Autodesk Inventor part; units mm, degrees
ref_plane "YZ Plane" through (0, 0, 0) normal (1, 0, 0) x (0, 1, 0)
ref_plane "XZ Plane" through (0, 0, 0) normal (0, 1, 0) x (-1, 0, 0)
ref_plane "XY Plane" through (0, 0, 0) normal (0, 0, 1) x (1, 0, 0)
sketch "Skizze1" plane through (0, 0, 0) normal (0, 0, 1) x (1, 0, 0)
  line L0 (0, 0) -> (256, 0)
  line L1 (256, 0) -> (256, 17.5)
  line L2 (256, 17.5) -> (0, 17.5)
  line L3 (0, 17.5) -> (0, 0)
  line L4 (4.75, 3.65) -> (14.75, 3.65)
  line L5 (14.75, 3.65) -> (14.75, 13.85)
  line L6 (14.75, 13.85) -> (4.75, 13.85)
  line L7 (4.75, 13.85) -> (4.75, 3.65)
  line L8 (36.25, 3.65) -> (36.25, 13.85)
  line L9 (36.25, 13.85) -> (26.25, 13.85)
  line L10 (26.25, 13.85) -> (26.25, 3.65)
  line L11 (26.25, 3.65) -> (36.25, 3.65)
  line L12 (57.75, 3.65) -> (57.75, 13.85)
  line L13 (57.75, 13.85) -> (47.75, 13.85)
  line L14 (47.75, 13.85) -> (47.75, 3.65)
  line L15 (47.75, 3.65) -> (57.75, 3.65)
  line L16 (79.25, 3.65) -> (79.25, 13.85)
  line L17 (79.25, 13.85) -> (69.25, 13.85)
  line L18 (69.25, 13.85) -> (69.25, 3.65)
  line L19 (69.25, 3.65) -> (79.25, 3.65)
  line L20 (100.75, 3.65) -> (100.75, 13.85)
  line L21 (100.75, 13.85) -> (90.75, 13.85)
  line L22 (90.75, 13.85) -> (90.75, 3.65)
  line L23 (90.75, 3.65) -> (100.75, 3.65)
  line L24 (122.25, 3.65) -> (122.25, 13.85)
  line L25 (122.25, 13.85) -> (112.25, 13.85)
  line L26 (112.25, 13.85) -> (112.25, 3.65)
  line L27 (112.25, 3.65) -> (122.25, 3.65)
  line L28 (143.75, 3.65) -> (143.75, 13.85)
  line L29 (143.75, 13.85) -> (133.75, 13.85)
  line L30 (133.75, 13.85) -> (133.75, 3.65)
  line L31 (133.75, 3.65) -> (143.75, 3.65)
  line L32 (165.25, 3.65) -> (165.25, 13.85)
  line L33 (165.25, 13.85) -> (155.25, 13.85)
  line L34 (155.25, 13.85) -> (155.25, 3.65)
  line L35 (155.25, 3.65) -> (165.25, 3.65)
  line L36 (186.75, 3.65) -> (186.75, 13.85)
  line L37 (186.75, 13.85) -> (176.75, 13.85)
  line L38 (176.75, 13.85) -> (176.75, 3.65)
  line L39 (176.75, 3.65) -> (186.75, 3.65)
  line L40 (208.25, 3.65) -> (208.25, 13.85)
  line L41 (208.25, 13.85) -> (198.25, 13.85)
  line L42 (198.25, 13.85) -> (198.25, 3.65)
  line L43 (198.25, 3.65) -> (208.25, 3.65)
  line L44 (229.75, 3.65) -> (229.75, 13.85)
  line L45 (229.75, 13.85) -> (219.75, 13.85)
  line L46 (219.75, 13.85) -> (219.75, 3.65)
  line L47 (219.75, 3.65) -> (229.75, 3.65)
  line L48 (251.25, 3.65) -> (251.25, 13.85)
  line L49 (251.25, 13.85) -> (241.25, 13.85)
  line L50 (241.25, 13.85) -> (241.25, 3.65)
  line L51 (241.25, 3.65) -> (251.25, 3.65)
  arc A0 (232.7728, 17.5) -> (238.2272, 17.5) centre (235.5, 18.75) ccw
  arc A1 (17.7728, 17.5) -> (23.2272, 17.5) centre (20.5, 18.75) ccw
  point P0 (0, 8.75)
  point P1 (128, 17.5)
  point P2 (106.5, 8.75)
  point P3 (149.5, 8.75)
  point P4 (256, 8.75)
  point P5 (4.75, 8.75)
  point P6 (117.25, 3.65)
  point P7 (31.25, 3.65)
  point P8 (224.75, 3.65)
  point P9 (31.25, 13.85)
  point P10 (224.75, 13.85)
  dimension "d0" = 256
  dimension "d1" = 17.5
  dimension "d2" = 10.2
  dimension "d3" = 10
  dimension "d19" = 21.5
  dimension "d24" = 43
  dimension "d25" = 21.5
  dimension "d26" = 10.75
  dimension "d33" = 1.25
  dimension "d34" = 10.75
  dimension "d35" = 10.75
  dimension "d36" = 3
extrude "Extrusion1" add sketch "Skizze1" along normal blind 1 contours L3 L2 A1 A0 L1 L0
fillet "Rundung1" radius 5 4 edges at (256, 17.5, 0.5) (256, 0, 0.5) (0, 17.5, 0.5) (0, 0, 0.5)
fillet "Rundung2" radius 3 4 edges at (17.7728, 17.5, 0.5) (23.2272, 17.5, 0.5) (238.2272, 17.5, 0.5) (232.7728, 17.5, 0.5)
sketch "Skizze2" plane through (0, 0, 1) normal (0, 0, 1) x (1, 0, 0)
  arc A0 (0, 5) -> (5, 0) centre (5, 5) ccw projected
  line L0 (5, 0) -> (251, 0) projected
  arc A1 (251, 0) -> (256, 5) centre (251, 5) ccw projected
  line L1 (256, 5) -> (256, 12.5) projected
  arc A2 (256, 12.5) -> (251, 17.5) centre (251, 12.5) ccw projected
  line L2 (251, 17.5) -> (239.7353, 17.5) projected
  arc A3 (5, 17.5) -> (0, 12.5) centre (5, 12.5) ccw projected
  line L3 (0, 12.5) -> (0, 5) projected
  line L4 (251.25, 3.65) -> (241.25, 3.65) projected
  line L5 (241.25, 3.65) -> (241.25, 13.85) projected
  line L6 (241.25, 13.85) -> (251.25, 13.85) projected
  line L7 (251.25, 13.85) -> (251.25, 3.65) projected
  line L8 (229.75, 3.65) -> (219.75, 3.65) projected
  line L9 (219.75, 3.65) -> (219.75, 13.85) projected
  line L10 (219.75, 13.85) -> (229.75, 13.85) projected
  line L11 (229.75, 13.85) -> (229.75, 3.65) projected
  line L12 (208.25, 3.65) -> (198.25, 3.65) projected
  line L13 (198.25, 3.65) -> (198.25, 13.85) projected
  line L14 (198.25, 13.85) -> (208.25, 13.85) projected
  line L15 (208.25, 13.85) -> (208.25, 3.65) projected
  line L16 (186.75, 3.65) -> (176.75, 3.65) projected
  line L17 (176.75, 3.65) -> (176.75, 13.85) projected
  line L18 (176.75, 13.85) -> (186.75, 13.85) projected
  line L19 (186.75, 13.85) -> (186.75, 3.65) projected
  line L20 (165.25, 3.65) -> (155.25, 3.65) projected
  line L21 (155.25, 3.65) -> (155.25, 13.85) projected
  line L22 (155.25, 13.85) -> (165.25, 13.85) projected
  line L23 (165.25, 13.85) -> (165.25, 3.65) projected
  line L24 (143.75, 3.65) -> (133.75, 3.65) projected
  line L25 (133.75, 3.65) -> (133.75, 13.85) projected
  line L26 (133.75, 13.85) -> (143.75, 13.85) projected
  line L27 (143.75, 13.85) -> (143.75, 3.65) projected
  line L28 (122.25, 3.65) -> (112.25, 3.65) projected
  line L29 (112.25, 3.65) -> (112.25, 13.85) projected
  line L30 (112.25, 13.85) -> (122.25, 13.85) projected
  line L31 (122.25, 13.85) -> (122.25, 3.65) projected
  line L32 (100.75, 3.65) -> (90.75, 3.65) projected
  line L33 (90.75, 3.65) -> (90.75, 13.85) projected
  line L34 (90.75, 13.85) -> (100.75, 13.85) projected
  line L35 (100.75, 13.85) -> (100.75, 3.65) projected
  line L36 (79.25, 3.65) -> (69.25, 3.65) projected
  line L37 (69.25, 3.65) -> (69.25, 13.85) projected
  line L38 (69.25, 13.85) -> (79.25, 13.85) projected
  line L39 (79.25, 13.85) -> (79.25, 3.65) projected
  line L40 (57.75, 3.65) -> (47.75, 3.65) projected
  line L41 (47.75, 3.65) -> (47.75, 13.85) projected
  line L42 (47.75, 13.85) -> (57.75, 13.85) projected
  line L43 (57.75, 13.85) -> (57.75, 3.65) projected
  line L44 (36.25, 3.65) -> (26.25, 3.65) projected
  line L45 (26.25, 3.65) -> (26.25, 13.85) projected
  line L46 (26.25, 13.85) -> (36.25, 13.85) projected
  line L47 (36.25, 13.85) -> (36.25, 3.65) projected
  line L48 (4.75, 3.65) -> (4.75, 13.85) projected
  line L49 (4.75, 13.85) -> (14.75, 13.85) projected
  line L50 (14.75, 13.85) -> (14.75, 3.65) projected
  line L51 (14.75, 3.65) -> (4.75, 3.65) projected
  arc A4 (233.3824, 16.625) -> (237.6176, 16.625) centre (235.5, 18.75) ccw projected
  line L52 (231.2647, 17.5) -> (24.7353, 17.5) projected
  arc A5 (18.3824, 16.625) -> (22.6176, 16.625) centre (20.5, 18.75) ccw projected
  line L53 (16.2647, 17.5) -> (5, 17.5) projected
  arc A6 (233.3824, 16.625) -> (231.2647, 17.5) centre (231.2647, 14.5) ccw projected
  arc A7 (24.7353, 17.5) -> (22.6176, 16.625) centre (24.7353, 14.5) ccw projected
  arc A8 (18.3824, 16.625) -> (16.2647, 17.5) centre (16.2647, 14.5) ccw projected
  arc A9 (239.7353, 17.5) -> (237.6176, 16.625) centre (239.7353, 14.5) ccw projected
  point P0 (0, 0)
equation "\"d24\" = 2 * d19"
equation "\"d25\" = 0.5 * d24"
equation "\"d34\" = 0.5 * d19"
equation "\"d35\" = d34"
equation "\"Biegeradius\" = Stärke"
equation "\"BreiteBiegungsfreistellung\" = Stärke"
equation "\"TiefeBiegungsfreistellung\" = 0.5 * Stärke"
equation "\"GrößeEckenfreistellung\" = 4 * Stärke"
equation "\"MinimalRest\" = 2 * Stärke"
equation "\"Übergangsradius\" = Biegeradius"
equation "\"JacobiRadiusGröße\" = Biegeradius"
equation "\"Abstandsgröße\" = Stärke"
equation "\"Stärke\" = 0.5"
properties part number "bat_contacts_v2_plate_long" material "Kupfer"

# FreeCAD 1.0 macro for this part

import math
import FreeCAD as App
import Part
import Sketcher
from FreeCAD import Vector
Q = App.Units.Quantity


def edges_at(feature, points):
    """Names of the edges that pass closest to the given points."""
    edges = feature.Shape.Edges
    near = lambda p: min(range(len(edges)), key=lambda i: edges[i].distToShape(Part.Vertex(*p))[0])
    return sorted({f"Edge{near(p) + 1}" for p in points})

doc = App.newDocument("Part")
body = doc.addObject("PartDesign::Body", "Body")

# Sketch on XY plane
sketch1 = body.newObject("Sketcher::SketchObject", "Sketch")
sketch1.AttachmentSupport = (doc.getObject("XY_Plane"), [""])
sketch1.MapMode = "FlatFace"
sketch1.addGeometry([
    Part.LineSegment(Vector(0, 17.5, 0), Vector(0, 0, 0)),  # 0
    Part.LineSegment(Vector(0, 0, 0), Vector(256, 0, 0)),  # 1
    Part.LineSegment(Vector(256, 0, 0), Vector(256, 17.5, 0)),  # 2
    Part.LineSegment(Vector(256, 17.5, 0), Vector(238.2, 17.5, 0)),  # 3
    Part.ArcOfCircle(Part.Circle(Vector(235.5, 18.8, 0), Vector(0, 0, 1), 3), math.radians(-155), math.radians(-25)),  # 4
    Part.LineSegment(Vector(232.8, 17.5, 0), Vector(23.2, 17.5, 0)),  # 5
    Part.ArcOfCircle(Part.Circle(Vector(20.5, 18.8, 0), Vector(0, 0, 1), 3), math.radians(-155), math.radians(-25)),  # 6
    Part.LineSegment(Vector(17.8, 17.5, 0), Vector(0, 17.5, 0)),  # 7
    Part.LineSegment(Vector(14.8, 3.6, 0), Vector(4.8, 3.6, 0)),  # 8
    Part.LineSegment(Vector(4.8, 3.6, 0), Vector(4.8, 13.8, 0)),  # 9
    Part.LineSegment(Vector(4.8, 13.8, 0), Vector(14.8, 13.8, 0)),  # 10
    Part.LineSegment(Vector(14.8, 13.8, 0), Vector(14.8, 3.6, 0)),  # 11
    Part.LineSegment(Vector(36.2, 13.8, 0), Vector(36.2, 3.6, 0)),  # 12
    Part.LineSegment(Vector(36.2, 3.6, 0), Vector(26.2, 3.6, 0)),  # 13
    Part.LineSegment(Vector(26.2, 3.6, 0), Vector(26.2, 13.8, 0)),  # 14
    Part.LineSegment(Vector(26.2, 13.8, 0), Vector(36.2, 13.8, 0)),  # 15
    Part.LineSegment(Vector(57.8, 13.8, 0), Vector(57.8, 3.6, 0)),  # 16
    Part.LineSegment(Vector(57.8, 3.6, 0), Vector(47.8, 3.6, 0)),  # 17
    Part.LineSegment(Vector(47.8, 3.6, 0), Vector(47.8, 13.8, 0)),  # 18
    Part.LineSegment(Vector(47.8, 13.8, 0), Vector(57.8, 13.8, 0)),  # 19
    Part.LineSegment(Vector(79.2, 13.8, 0), Vector(79.2, 3.6, 0)),  # 20
    Part.LineSegment(Vector(79.2, 3.6, 0), Vector(69.2, 3.6, 0)),  # 21
    Part.LineSegment(Vector(69.2, 3.6, 0), Vector(69.2, 13.8, 0)),  # 22
    Part.LineSegment(Vector(69.2, 13.8, 0), Vector(79.2, 13.8, 0)),  # 23
    Part.LineSegment(Vector(100.8, 13.8, 0), Vector(100.8, 3.6, 0)),  # 24
    Part.LineSegment(Vector(100.8, 3.6, 0), Vector(90.8, 3.6, 0)),  # 25
    Part.LineSegment(Vector(90.8, 3.6, 0), Vector(90.8, 13.8, 0)),  # 26
    Part.LineSegment(Vector(90.8, 13.8, 0), Vector(100.8, 13.8, 0)),  # 27
    Part.LineSegment(Vector(122.2, 13.8, 0), Vector(122.2, 3.6, 0)),  # 28
    Part.LineSegment(Vector(122.2, 3.6, 0), Vector(112.2, 3.6, 0)),  # 29
    Part.LineSegment(Vector(112.2, 3.6, 0), Vector(112.2, 13.8, 0)),  # 30
    Part.LineSegment(Vector(112.2, 13.8, 0), Vector(122.2, 13.8, 0)),  # 31
    Part.LineSegment(Vector(143.8, 13.8, 0), Vector(143.8, 3.6, 0)),  # 32
    Part.LineSegment(Vector(143.8, 3.6, 0), Vector(133.8, 3.6, 0)),  # 33
    Part.LineSegment(Vector(133.8, 3.6, 0), Vector(133.8, 13.8, 0)),  # 34
    Part.LineSegment(Vector(133.8, 13.8, 0), Vector(143.8, 13.8, 0)),  # 35
    Part.LineSegment(Vector(165.2, 13.8, 0), Vector(165.2, 3.6, 0)),  # 36
    Part.LineSegment(Vector(165.2, 3.6, 0), Vector(155.2, 3.6, 0)),  # 37
    Part.LineSegment(Vector(155.2, 3.6, 0), Vector(155.2, 13.8, 0)),  # 38
    Part.LineSegment(Vector(155.2, 13.8, 0), Vector(165.2, 13.8, 0)),  # 39
    Part.LineSegment(Vector(186.8, 13.8, 0), Vector(186.8, 3.6, 0)),  # 40
    Part.LineSegment(Vector(186.8, 3.6, 0), Vector(176.8, 3.6, 0)),  # 41
    Part.LineSegment(Vector(176.8, 3.6, 0), Vector(176.8, 13.8, 0)),  # 42
    Part.LineSegment(Vector(176.8, 13.8, 0), Vector(186.8, 13.8, 0)),  # 43
    Part.LineSegment(Vector(208.2, 13.8, 0), Vector(208.2, 3.6, 0)),  # 44
    Part.LineSegment(Vector(208.2, 3.6, 0), Vector(198.2, 3.6, 0)),  # 45
    Part.LineSegment(Vector(198.2, 3.6, 0), Vector(198.2, 13.8, 0)),  # 46
    Part.LineSegment(Vector(198.2, 13.8, 0), Vector(208.2, 13.8, 0)),  # 47
    Part.LineSegment(Vector(229.8, 13.8, 0), Vector(229.8, 3.6, 0)),  # 48
    Part.LineSegment(Vector(229.8, 3.6, 0), Vector(219.8, 3.6, 0)),  # 49
    Part.LineSegment(Vector(219.8, 3.6, 0), Vector(219.8, 13.8, 0)),  # 50
    Part.LineSegment(Vector(219.8, 13.8, 0), Vector(229.8, 13.8, 0)),  # 51
    Part.LineSegment(Vector(251.2, 13.8, 0), Vector(251.2, 3.6, 0)),  # 52
    Part.LineSegment(Vector(251.2, 3.6, 0), Vector(241.2, 3.6, 0)),  # 53
    Part.LineSegment(Vector(241.2, 3.6, 0), Vector(241.2, 13.8, 0)),  # 54
    Part.LineSegment(Vector(241.2, 13.8, 0), Vector(251.2, 13.8, 0)),  # 55
], False)
sketch1.addConstraint([
    Sketcher.Constraint("Coincident", 0, 2, 1, 1),
    Sketcher.Constraint("Coincident", 1, 2, 2, 1),
    Sketcher.Constraint("Coincident", 2, 2, 3, 1),
    Sketcher.Constraint("Coincident", 3, 2, 4, 2),
    Sketcher.Constraint("Coincident", 4, 1, 5, 1),
    Sketcher.Constraint("Coincident", 5, 2, 6, 2),
    Sketcher.Constraint("Coincident", 6, 1, 7, 1),
    Sketcher.Constraint("Coincident", 7, 2, 0, 1),
    Sketcher.Constraint("Coincident", 8, 2, 9, 1),
    Sketcher.Constraint("Coincident", 9, 2, 10, 1),
    Sketcher.Constraint("Coincident", 10, 2, 11, 1),
    Sketcher.Constraint("Coincident", 11, 2, 8, 1),
    Sketcher.Constraint("Coincident", 12, 2, 13, 1),
    Sketcher.Constraint("Coincident", 13, 2, 14, 1),
    Sketcher.Constraint("Coincident", 14, 2, 15, 1),
    Sketcher.Constraint("Coincident", 15, 2, 12, 1),
    Sketcher.Constraint("Coincident", 16, 2, 17, 1),
    Sketcher.Constraint("Coincident", 17, 2, 18, 1),
    Sketcher.Constraint("Coincident", 18, 2, 19, 1),
    Sketcher.Constraint("Coincident", 19, 2, 16, 1),
    Sketcher.Constraint("Coincident", 20, 2, 21, 1),
    Sketcher.Constraint("Coincident", 21, 2, 22, 1),
    Sketcher.Constraint("Coincident", 22, 2, 23, 1),
    Sketcher.Constraint("Coincident", 23, 2, 20, 1),
    Sketcher.Constraint("Coincident", 24, 2, 25, 1),
    Sketcher.Constraint("Coincident", 25, 2, 26, 1),
    Sketcher.Constraint("Coincident", 26, 2, 27, 1),
    Sketcher.Constraint("Coincident", 27, 2, 24, 1),
    Sketcher.Constraint("Coincident", 28, 2, 29, 1),
    Sketcher.Constraint("Coincident", 29, 2, 30, 1),
    Sketcher.Constraint("Coincident", 30, 2, 31, 1),
    Sketcher.Constraint("Coincident", 31, 2, 28, 1),
    Sketcher.Constraint("Coincident", 32, 2, 33, 1),
    Sketcher.Constraint("Coincident", 33, 2, 34, 1),
    Sketcher.Constraint("Coincident", 34, 2, 35, 1),
    Sketcher.Constraint("Coincident", 35, 2, 32, 1),
    Sketcher.Constraint("Coincident", 36, 2, 37, 1),
    Sketcher.Constraint("Coincident", 37, 2, 38, 1),
    Sketcher.Constraint("Coincident", 38, 2, 39, 1),
    Sketcher.Constraint("Coincident", 39, 2, 36, 1),
    Sketcher.Constraint("Coincident", 40, 2, 41, 1),
    Sketcher.Constraint("Coincident", 41, 2, 42, 1),
    Sketcher.Constraint("Coincident", 42, 2, 43, 1),
    Sketcher.Constraint("Coincident", 43, 2, 40, 1),
    Sketcher.Constraint("Coincident", 44, 2, 45, 1),
    Sketcher.Constraint("Coincident", 45, 2, 46, 1),
    Sketcher.Constraint("Coincident", 46, 2, 47, 1),
    Sketcher.Constraint("Coincident", 47, 2, 44, 1),
    Sketcher.Constraint("Coincident", 48, 2, 49, 1),
    Sketcher.Constraint("Coincident", 49, 2, 50, 1),
    Sketcher.Constraint("Coincident", 50, 2, 51, 1),
    Sketcher.Constraint("Coincident", 51, 2, 48, 1),
    Sketcher.Constraint("Coincident", 52, 2, 53, 1),
    Sketcher.Constraint("Coincident", 53, 2, 54, 1),
    Sketcher.Constraint("Coincident", 54, 2, 55, 1),
    Sketcher.Constraint("Coincident", 55, 2, 52, 1),
    Sketcher.Constraint("Vertical", 0),
    Sketcher.Constraint("Horizontal", 1),
    Sketcher.Constraint("Vertical", 2),
    Sketcher.Constraint("Horizontal", 3),
    Sketcher.Constraint("Horizontal", 5),
    Sketcher.Constraint("Horizontal", 7),
    Sketcher.Constraint("Horizontal", 8),
    Sketcher.Constraint("Vertical", 9),
    Sketcher.Constraint("Horizontal", 10),
    Sketcher.Constraint("Vertical", 11),
    Sketcher.Constraint("Vertical", 12),
    Sketcher.Constraint("Horizontal", 13),
    Sketcher.Constraint("Vertical", 14),
    Sketcher.Constraint("Horizontal", 15),
    Sketcher.Constraint("Vertical", 16),
    Sketcher.Constraint("Horizontal", 17),
    Sketcher.Constraint("Vertical", 18),
    Sketcher.Constraint("Horizontal", 19),
    Sketcher.Constraint("Vertical", 20),
    Sketcher.Constraint("Horizontal", 21),
    Sketcher.Constraint("Vertical", 22),
    Sketcher.Constraint("Horizontal", 23),
    Sketcher.Constraint("Vertical", 24),
    Sketcher.Constraint("Horizontal", 25),
    Sketcher.Constraint("Vertical", 26),
    Sketcher.Constraint("Horizontal", 27),
    Sketcher.Constraint("Vertical", 28),
    Sketcher.Constraint("Horizontal", 29),
    Sketcher.Constraint("Vertical", 30),
    Sketcher.Constraint("Horizontal", 31),
    Sketcher.Constraint("Vertical", 32),
    Sketcher.Constraint("Horizontal", 33),
    Sketcher.Constraint("Vertical", 34),
    Sketcher.Constraint("Horizontal", 35),
    Sketcher.Constraint("Vertical", 36),
    Sketcher.Constraint("Horizontal", 37),
    Sketcher.Constraint("Vertical", 38),
    Sketcher.Constraint("Horizontal", 39),
    Sketcher.Constraint("Vertical", 40),
    Sketcher.Constraint("Horizontal", 41),
    Sketcher.Constraint("Vertical", 42),
    Sketcher.Constraint("Horizontal", 43),
    Sketcher.Constraint("Vertical", 44),
    Sketcher.Constraint("Horizontal", 45),
    Sketcher.Constraint("Vertical", 46),
    Sketcher.Constraint("Horizontal", 47),
    Sketcher.Constraint("Vertical", 48),
    Sketcher.Constraint("Horizontal", 49),
    Sketcher.Constraint("Vertical", 50),
    Sketcher.Constraint("Horizontal", 51),
    Sketcher.Constraint("Vertical", 52),
    Sketcher.Constraint("Horizontal", 53),
    Sketcher.Constraint("Vertical", 54),
    Sketcher.Constraint("Horizontal", 55),
    Sketcher.Constraint("Coincident", 0, 2, -1, 1),
    Sketcher.Constraint("Equal", 4, 6),
    Sketcher.Constraint("Horizontal", 4, 3, 6, 3),
    Sketcher.Constraint("Horizontal", 3, 2, 4, 1),
    Sketcher.Constraint("Horizontal", 5, 2, 6, 1),
    Sketcher.Constraint("Horizontal", 11, 2, 12, 2),
    Sketcher.Constraint("Horizontal", 10, 2, 14, 2),
    Sketcher.Constraint("Horizontal", 13, 2, 16, 2),
    Sketcher.Constraint("Horizontal", 15, 2, 18, 2),
    Sketcher.Constraint("Horizontal", 17, 2, 20, 2),
    Sketcher.Constraint("Horizontal", 19, 2, 22, 2),
    Sketcher.Constraint("Horizontal", 21, 2, 24, 2),
    Sketcher.Constraint("Horizontal", 23, 2, 26, 2),
    Sketcher.Constraint("Horizontal", 25, 2, 28, 2),
    Sketcher.Constraint("Horizontal", 27, 2, 30, 2),
    Sketcher.Constraint("Horizontal", 29, 2, 32, 2),
    Sketcher.Constraint("Horizontal", 31, 2, 34, 2),
    Sketcher.Constraint("Horizontal", 33, 2, 36, 2),
    Sketcher.Constraint("Horizontal", 35, 2, 38, 2),
    Sketcher.Constraint("Horizontal", 37, 2, 40, 2),
    Sketcher.Constraint("Horizontal", 39, 2, 42, 2),
    Sketcher.Constraint("Horizontal", 41, 2, 44, 2),
    Sketcher.Constraint("Horizontal", 43, 2, 46, 2),
    Sketcher.Constraint("Horizontal", 45, 2, 48, 2),
    Sketcher.Constraint("Horizontal", 47, 2, 50, 2),
    Sketcher.Constraint("Horizontal", 49, 2, 52, 2),
    Sketcher.Constraint("Horizontal", 51, 2, 54, 2),
    Sketcher.Constraint("Equal", 3, 7),
    Sketcher.Constraint("Equal", 10, 13),
    Sketcher.Constraint("Equal", 15, 17),
    Sketcher.Constraint("Equal", 19, 21),
    Sketcher.Constraint("Equal", 23, 25),
    Sketcher.Constraint("Equal", 27, 29),
    Sketcher.Constraint("Equal", 31, 33),
    Sketcher.Constraint("Equal", 35, 37),
    Sketcher.Constraint("Equal", 39, 41),
    Sketcher.Constraint("Equal", 43, 45),
    Sketcher.Constraint("Equal", 47, 49),
    Sketcher.Constraint("Equal", 51, 53),
    Sketcher.Constraint("Radius", 4, Q("3 mm")),
    Sketcher.Constraint("DistanceX", 1, 1, 1, 2, Q("256 mm")),
    Sketcher.Constraint("DistanceX", 8, 2, 8, 1, Q("10 mm")),
    Sketcher.Constraint("DistanceY", 0, 2, 0, 1, Q("17.5 mm")),
    Sketcher.Constraint("DistanceY", 9, 1, 9, 2, Q("10.2 mm")),
    Sketcher.Constraint("DistanceX", 12, 2, 20, 2, Q("43 mm")),
    Sketcher.Constraint("DistanceX", 16, 2, 24, 2, Q("43 mm")),
    Sketcher.Constraint("DistanceX", 20, 2, 28, 2, Q("43 mm")),
    Sketcher.Constraint("DistanceX", 24, 2, 32, 2, Q("43 mm")),
    Sketcher.Constraint("DistanceX", 28, 2, 36, 2, Q("43 mm")),
    Sketcher.Constraint("DistanceX", 32, 2, 40, 2, Q("43 mm")),
    Sketcher.Constraint("DistanceX", 11, 2, 12, 2, Q("21.5 mm")),
    Sketcher.Constraint("DistanceX", 12, 2, 16, 2, Q("21.5 mm")),
    Sketcher.Constraint("DistanceX", 40, 2, 44, 2, Q("21.5 mm")),
    Sketcher.Constraint("DistanceX", 44, 2, 48, 2, Q("21.5 mm")),
    Sketcher.Constraint("DistanceX", 48, 2, 52, 2, Q("21.5 mm")),
    Sketcher.Constraint("DistanceY", 2, 2, 4, 3, Q("1.25 mm")),
    Sketcher.Constraint("DistanceX", 6, 3, 4, 3, Q("215 mm")),
    Sketcher.Constraint("DistanceY", 8, 2, 6, 3, Q("15.1 mm")),
    Sketcher.Constraint("DistanceX", -1, 1, 8, 2, Q("4.75 mm")),
])
pad1 = body.newObject("PartDesign::Pad", "Pad")
pad1.Profile = sketch1
pad1.Length = 1
doc.recompute()

fillet = body.newObject("PartDesign::Fillet", "Fillet")
fillet.Base = (pad1, edges_at(pad1, [
    (256, 17.5, 0.5),
    (256, 0, 0.5),
    (0, 17.5, 0.5),
    (0, 0, 0.5),
]))
fillet.Radius = 5
doc.recompute()

fillet2 = body.newObject("PartDesign::Fillet", "Fillet001")
fillet2.Base = (fillet, edges_at(fillet, [
    (17.773, 17.5, 0.5),
    (23.227, 17.5, 0.5),
    (238.227, 17.5, 0.5),
    (232.773, 17.5, 0.5),
]))
fillet2.Radius = 3

doc.recompute()
